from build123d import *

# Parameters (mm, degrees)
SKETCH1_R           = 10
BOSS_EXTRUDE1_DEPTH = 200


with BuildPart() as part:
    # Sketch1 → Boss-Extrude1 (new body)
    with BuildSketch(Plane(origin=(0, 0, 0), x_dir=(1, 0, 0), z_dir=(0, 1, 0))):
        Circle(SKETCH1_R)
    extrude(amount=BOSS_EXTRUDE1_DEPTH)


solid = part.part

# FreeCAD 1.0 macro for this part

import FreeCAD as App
import Part
import Sketcher
from FreeCAD import Vector
Q = App.Units.Quantity

doc = App.newDocument("Part")
params = doc.addObject("Spreadsheet::Sheet", "Params")
for row, (alias, value) in enumerate([
    ("sketch1_diameter", "20 mm"),
    ("pad1_length", "200 mm"),
], start=1):
    params.set(f"A{row}", alias)
    params.set(f"B{row}", "=" + value)
    params.setAlias(f"B{row}", alias)

body = doc.addObject("PartDesign::Body", "Body")

sketch1 = doc.addObject("Sketcher::SketchObject", "Sketch")
body.addObject(sketch1)
sketch1.AttachmentSupport = (doc.XZ_Plane, [""])
sketch1.MapMode = "FlatFace"
sketch1.addGeometry(Part.Circle(Vector(0, 0, 0), Vector(0, 0, 1), 10), False)
sketch1.addConstraint([
    Sketcher.Constraint("Coincident", 0, 3, -1, 1),
    Sketcher.Constraint("Diameter", 0, Q("20 mm")),
])
sketch1.setExpression("Constraints[1]", "Params.sketch1_diameter")
pad1 = doc.addObject("PartDesign::Pad", "Pad")
body.addObject(pad1)
pad1.Profile = sketch1
pad1.setExpression("Length", "Params.pad1_length")
pad1.Reversed = True

doc.recompute()
